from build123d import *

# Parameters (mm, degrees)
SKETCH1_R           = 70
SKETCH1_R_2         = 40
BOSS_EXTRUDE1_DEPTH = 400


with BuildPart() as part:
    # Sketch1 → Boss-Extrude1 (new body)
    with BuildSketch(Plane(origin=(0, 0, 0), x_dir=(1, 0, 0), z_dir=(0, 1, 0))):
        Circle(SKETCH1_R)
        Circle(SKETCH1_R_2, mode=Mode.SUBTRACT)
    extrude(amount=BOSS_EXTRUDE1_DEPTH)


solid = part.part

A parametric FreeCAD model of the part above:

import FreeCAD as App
import Part
import Sketcher

V = App.Vector

doc = App.newDocument("Part")
body = doc.addObject("PartDesign::Body", "Body")

# Sketch on XZ plane
sketch1 = doc.addObject("Sketcher::SketchObject", "Sketch")
body.addObject(sketch1)
sketch1.AttachmentSupport = (doc.XZ_Plane, [""])
sketch1.MapMode = "FlatFace"
sketch1.addGeometry(Part.Circle(V(0, 0, 0), V(0, 0, 1), 70), False)
sketch1.addGeometry(Part.Circle(V(0, 0, 0), V(0, 0, 1), 40), False)
sketch1.addConstraint(Sketcher.Constraint("Coincident", 0, 3, -1, 1))
sketch1.addConstraint(Sketcher.Constraint("Coincident", 1, 3, -1, 1))
sketch1.addConstraint(Sketcher.Constraint("Diameter", 0, 140.0))
sketch1.addConstraint(Sketcher.Constraint("Diameter", 1, 80.0))
pad1 = doc.addObject("PartDesign::Pad", "Pad")
body.addObject(pad1)
pad1.Profile = sketch1
pad1.Length = 400
pad1.Reversed = True

doc.recompute()
